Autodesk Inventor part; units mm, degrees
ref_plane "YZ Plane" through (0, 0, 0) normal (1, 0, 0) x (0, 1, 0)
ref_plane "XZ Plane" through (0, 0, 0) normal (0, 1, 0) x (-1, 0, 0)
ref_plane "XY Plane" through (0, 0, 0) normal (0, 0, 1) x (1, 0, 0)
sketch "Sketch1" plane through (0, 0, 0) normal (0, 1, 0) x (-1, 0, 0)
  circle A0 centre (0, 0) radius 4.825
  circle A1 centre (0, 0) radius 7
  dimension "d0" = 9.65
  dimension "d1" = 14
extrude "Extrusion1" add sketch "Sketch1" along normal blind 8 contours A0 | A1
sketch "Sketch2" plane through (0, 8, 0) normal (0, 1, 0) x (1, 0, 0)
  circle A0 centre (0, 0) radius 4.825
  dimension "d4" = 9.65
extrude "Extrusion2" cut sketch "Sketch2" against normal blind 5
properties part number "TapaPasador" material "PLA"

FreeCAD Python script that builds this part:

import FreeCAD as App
import Part
import Sketcher

doc = App.newDocument("Part")
body = doc.addObject("PartDesign::Body", "Body")

# Sketch on XZ plane
sketch1 = body.newObject("Sketcher::SketchObject", "Sketch")
sketch1.AttachmentSupport = (doc.getObject("XZ_Plane"), [""])
sketch1.MapMode = "FlatFace"
sketch1.addGeometry(Part.Circle(App.Vector(0, 0, 0), App.Vector(0, 0, 1), 7), False)
sketch1.addConstraint([
    Sketcher.Constraint("Coincident", 0, 3, -1, 1),
    Sketcher.Constraint("Diameter", 0, 14.0),
])
pad1 = body.newObject("PartDesign::Pad", "Pad")
pad1.Profile = sketch1
pad1.Length = 8
pad1.Reversed = True

# Sketch on XZ plane
sketch2 = body.newObject("Sketcher::SketchObject", "Sketch001")
sketch2.AttachmentSupport = (doc.getObject("XZ_Plane"), [""])
sketch2.MapMode = "FlatFace"
sketch2.AttachmentOffset = App.Placement(App.Vector(0, 0, -8), App.Rotation())
sketch2.addGeometry(Part.Circle(App.Vector(0, 0, 0), App.Vector(0, 0, 1), 4.8), False)
sketch2.addConstraint([
    Sketcher.Constraint("Coincident", 0, 3, -1, 1),
    Sketcher.Constraint("Diameter", 0, 9.65),
])
pocket1 = body.newObject("PartDesign::Pocket", "Pocket")
pocket1.Profile = sketch2
pocket1.Length = 5
pocket1.Reversed = True

doc.recompute()
